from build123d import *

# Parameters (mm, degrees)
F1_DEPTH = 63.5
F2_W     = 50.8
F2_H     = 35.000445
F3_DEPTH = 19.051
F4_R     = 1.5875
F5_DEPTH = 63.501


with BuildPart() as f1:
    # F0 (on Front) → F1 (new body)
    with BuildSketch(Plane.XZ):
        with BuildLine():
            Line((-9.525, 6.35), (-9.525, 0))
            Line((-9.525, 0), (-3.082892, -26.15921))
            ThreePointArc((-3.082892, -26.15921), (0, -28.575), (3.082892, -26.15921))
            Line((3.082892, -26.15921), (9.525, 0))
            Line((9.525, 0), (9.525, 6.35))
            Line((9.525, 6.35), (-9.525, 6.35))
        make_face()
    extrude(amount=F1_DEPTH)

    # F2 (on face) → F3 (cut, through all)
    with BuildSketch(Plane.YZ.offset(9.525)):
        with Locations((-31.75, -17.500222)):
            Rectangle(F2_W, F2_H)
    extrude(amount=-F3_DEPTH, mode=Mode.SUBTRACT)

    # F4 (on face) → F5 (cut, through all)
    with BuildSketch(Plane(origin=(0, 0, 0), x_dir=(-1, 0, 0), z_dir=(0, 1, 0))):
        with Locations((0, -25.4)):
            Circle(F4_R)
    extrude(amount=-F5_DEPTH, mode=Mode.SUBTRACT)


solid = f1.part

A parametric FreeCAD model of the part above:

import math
import FreeCAD as App
import Part
import Sketcher
from FreeCAD import Vector
Q = App.Units.Quantity


def add_polygon(sketch, points):
    """Adds a closed chain of lines whose ends are joined by coincident constraints."""
    first, n = sketch.GeometryCount, len(points)
    for a, b in zip(points, points[1:] + points[:1]):
        sketch.addGeometry(Part.LineSegment(App.Vector(*a, 0), App.Vector(*b, 0)), False)
    for i in range(n):
        sketch.addConstraint(Sketcher.Constraint("Coincident", first + i, 2, first + (i + 1) % n, 1))

doc = App.newDocument("Part")
params = doc.addObject("Spreadsheet::Sheet", "Params")
for row, (alias, value) in enumerate([
    ("sketch1_radius", "0.125 in"),
    ("sketch1_width", "0.75 in"),
    ("sketch1_height", "0.25 in"),
    ("pad1_length", "2.5 in"),
    ("sketch2_width", "2 in"),
    ("sketch3_diameter", "0.125 in"),
], start=1):
    params.set(f"A{row}", alias)
    params.set(f"B{row}", "=" + value)
    params.setAlias(f"B{row}", alias)

body = doc.addObject("PartDesign::Body", "Body")

sketch1 = body.newObject("Sketcher::SketchObject", "Sketch")
sketch1.AttachmentSupport = (doc.getObject("XZ_Plane"), [""])
sketch1.MapMode = "FlatFace"
sketch1.addGeometry([
    Part.LineSegment(Vector(-9.5, 6.3, 0), Vector(-9.5, 0, 0)),
    Part.LineSegment(Vector(-9.5, 0, 0), Vector(-3.1, -26.2, 0)),
    Part.ArcOfCircle(Part.Circle(Vector(0, -25.4, 0), Vector(0, 0, 1), 3.2), math.radians(-166), math.radians(-14)),
    Part.LineSegment(Vector(3.1, -26.2, 0), Vector(9.5, 0, 0)),
    Part.LineSegment(Vector(9.5, 0, 0), Vector(9.5, 6.3, 0)),
    Part.LineSegment(Vector(9.5, 6.3, 0), Vector(-9.5, 6.3, 0)),
], False)
sketch1.addConstraint([
    Sketcher.Constraint("Coincident", 0, 2, 1, 1),
    Sketcher.Constraint("Tangent", 1, 2, 2, 1),
    Sketcher.Constraint("Tangent", 2, 2, 3, 1),
    Sketcher.Constraint("Coincident", 3, 2, 4, 1),
    Sketcher.Constraint("Coincident", 4, 2, 5, 1),
    Sketcher.Constraint("Coincident", 5, 2, 0, 1),
    Sketcher.Constraint("Vertical", 0),
    Sketcher.Constraint("Vertical", 4),
    Sketcher.Constraint("Horizontal", 5),
    Sketcher.Constraint("Symmetric", 0, 2, 3, 2, -1, 1),
    Sketcher.Constraint("Symmetric", 1, 2, 2, 2, -2),
    Sketcher.Constraint("DistanceY", 2, 3, -1, 1, Q("1 in")),
    Sketcher.Constraint("Radius", 2, Q("0.125 in")),
    Sketcher.Constraint("DistanceX", 5, 2, 5, 1, Q("0.75 in")),
    Sketcher.Constraint("DistanceY", 0, 2, 0, 1, Q("0.25 in")),
])
sketch1.setExpression("Constraints[12]", "Params.sketch1_radius")
sketch1.setExpression("Constraints[13]", "Params.sketch1_width")
sketch1.setExpression("Constraints[14]", "Params.sketch1_height")
pad1 = body.newObject("PartDesign::Pad", "Pad")
pad1.Profile = sketch1
pad1.setExpression("Length", "Params.pad1_length")

sketch2 = body.newObject("Sketcher::SketchObject", "Sketch001")
sketch2.AttachmentSupport = (doc.getObject("YZ_Plane"), [""])
sketch2.MapMode = "FlatFace"
sketch2.AttachmentOffset = App.Placement(Vector(0, 0, 0.375 * 25.4), App.Rotation())
add_polygon(sketch2, [(-57, 0), (-57, -35), (-6, -35), (-6, 0)])
sketch2.addConstraint([
    Sketcher.Constraint("Vertical", 0),
    Sketcher.Constraint("Horizontal", 1),
    Sketcher.Constraint("Vertical", 2),
    Sketcher.Constraint("Horizontal", 3),
    Sketcher.Constraint("PointOnObject", 2, 2, -1),
    Sketcher.Constraint("DistanceX", 1, 1, 1, 2, Q("2 in")),
    Sketcher.Constraint("DistanceX", 0, 2, -1, 1, Q("2.25 in")),
    Sketcher.Constraint("DistanceY", 0, 2, 0, 1, 35.000445),
])
sketch2.setExpression("Constraints[9]", "Params.sketch2_width")
pocket1 = body.newObject("PartDesign::Pocket", "Pocket")
pocket1.Profile = sketch2
pocket1.Type = "ThroughAll"

sketch3 = body.newObject("Sketcher::SketchObject", "Sketch002")
sketch3.AttachmentSupport = (doc.getObject("XZ_Plane"), [""])
sketch3.MapMode = "FlatFace"
sketch3.addGeometry(Part.Circle(Vector(0, -25.4, 0), Vector(0, 0, 1), 1.6), False)
sketch3.addConstraint([
    Sketcher.Constraint("PointOnObject", 0, 3, -2),
    Sketcher.Constraint("Diameter", 0, Q("0.125 in")),
    Sketcher.Constraint("DistanceY", 0, 3, -1, 1, Q("1 in")),
])
sketch3.setExpression("Constraints[1]", "Params.sketch3_diameter")
pocket2 = body.newObject("PartDesign::Pocket", "Pocket001")
pocket2.Profile = sketch3
pocket2.Type = "ThroughAll"
pocket2.Reversed = True

doc.recompute()
